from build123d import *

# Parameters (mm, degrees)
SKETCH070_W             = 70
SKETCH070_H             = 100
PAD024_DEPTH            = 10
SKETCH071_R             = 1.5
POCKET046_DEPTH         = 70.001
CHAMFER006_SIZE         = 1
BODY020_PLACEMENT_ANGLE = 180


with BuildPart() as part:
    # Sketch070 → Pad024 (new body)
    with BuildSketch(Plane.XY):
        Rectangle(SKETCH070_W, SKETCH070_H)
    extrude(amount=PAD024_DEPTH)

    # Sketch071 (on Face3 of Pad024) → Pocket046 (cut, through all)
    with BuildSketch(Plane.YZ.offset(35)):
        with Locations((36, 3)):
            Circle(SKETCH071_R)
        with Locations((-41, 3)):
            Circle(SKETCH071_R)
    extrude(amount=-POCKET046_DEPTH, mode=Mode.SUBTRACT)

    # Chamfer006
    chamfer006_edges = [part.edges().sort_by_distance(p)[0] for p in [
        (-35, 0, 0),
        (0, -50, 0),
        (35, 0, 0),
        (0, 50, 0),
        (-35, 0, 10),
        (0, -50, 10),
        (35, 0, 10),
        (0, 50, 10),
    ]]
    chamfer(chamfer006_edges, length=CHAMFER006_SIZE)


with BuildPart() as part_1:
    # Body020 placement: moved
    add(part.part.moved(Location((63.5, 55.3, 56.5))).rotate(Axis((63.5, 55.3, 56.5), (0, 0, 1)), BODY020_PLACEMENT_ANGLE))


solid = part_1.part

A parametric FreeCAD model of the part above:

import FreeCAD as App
import Part
import Sketcher

V = App.Vector


def edges_at(feature, points):
    """Names of the edges that pass closest to the given points."""
    edges = feature.Shape.Edges
    near = lambda p: min(range(len(edges)), key=lambda i: edges[i].distToShape(Part.Vertex(*p))[0])
    return sorted({f"Edge{near(p) + 1}" for p in points})


def add_polygon(sketch, points):
    """Adds a closed chain of lines whose ends are joined by coincident constraints."""
    first, n = sketch.GeometryCount, len(points)
    for a, b in zip(points, points[1:] + points[:1]):
        sketch.addGeometry(Part.LineSegment(App.Vector(*a, 0), App.Vector(*b, 0)), False)
    for i in range(n):
        sketch.addConstraint(Sketcher.Constraint("Coincident", first + i, 2, first + (i + 1) % n, 1))

doc = App.newDocument("Part")
body = doc.addObject("PartDesign::Body", "Body")

# Sketch on XY plane
sketch1 = doc.addObject("Sketcher::SketchObject", "Sketch")
body.addObject(sketch1)
sketch1.AttachmentSupport = (doc.XY_Plane, [""])
sketch1.MapMode = "FlatFace"
add_polygon(sketch1, [(-35, 50), (-35, -50), (35, -50), (35, 50)])  # lines 0-3
sketch1.addConstraint(Sketcher.Constraint("Vertical", 0))
sketch1.addConstraint(Sketcher.Constraint("Horizontal", 1))
sketch1.addConstraint(Sketcher.Constraint("Vertical", 2))
sketch1.addConstraint(Sketcher.Constraint("Horizontal", 3))
sketch1.addConstraint(Sketcher.Constraint("Symmetric", 0, 2, 2, 2, -1, 1))
sketch1.addConstraint(Sketcher.Constraint("DistanceX", 1, 1, 1, 2, 70.0))
sketch1.addConstraint(Sketcher.Constraint("DistanceY", 0, 2, 0, 1, 100.0))
pad1 = doc.addObject("PartDesign::Pad", "Pad")
body.addObject(pad1)
pad1.Profile = sketch1
pad1.Length = 10

# Sketch on YZ plane
sketch2 = doc.addObject("Sketcher::SketchObject", "Sketch001")
body.addObject(sketch2)
sketch2.AttachmentSupport = (doc.YZ_Plane, [""])
sketch2.MapMode = "FlatFace"
sketch2.AttachmentOffset = App.Placement(V(0, 0, 35), App.Rotation())
sketch2.addGeometry(Part.Circle(V(36, 3, 0), V(0, 0, 1), 1.5), False)
sketch2.addGeometry(Part.Circle(V(-41, 3, 0), V(0, 0, 1), 1.5), False)
sketch2.addConstraint(Sketcher.Constraint("Equal", 0, 1))
sketch2.addConstraint(Sketcher.Constraint("Horizontal", 0, 3, 1, 3))
sketch2.addConstraint(Sketcher.Constraint("Diameter", 0, 3.0))
sketch2.addConstraint(Sketcher.Constraint("DistanceX", -1, 1, 0, 3, 36.0))
sketch2.addConstraint(Sketcher.Constraint("DistanceY", -1, 1, 0, 3, 3.0))
sketch2.addConstraint(Sketcher.Constraint("DistanceX", 1, 3, -1, 1, 41.0))
pocket1 = doc.addObject("PartDesign::Pocket", "Pocket")
body.addObject(pocket1)
pocket1.Profile = sketch2
pocket1.Type = "ThroughAll"
doc.recompute()

chamfer = doc.addObject("PartDesign::Chamfer", "Chamfer")
body.addObject(chamfer)
chamfer.Base = (pocket1, edges_at(pocket1, [
    (-35, 0, 0),
    (0, -50, 0),
    (35, 0, 0),
    (0, 50, 0),
    (-35, 0, 10),
    (0, -50, 10),
    (35, 0, 10),
    (0, 50, 10),
]))
chamfer.Size = 1
body2 = doc.addObject("PartDesign::Body", "Body001")
doc.recompute()

body.Placement = App.Placement(V(63.5, 55.3, 56.5), App.Rotation(V(0, 0, 1), 180))
boolean = doc.addObject("PartDesign::Boolean", "Boolean")
body2.addObject(boolean)
boolean.Type = "Fuse"
boolean.addObjects([body])

doc.recompute()
